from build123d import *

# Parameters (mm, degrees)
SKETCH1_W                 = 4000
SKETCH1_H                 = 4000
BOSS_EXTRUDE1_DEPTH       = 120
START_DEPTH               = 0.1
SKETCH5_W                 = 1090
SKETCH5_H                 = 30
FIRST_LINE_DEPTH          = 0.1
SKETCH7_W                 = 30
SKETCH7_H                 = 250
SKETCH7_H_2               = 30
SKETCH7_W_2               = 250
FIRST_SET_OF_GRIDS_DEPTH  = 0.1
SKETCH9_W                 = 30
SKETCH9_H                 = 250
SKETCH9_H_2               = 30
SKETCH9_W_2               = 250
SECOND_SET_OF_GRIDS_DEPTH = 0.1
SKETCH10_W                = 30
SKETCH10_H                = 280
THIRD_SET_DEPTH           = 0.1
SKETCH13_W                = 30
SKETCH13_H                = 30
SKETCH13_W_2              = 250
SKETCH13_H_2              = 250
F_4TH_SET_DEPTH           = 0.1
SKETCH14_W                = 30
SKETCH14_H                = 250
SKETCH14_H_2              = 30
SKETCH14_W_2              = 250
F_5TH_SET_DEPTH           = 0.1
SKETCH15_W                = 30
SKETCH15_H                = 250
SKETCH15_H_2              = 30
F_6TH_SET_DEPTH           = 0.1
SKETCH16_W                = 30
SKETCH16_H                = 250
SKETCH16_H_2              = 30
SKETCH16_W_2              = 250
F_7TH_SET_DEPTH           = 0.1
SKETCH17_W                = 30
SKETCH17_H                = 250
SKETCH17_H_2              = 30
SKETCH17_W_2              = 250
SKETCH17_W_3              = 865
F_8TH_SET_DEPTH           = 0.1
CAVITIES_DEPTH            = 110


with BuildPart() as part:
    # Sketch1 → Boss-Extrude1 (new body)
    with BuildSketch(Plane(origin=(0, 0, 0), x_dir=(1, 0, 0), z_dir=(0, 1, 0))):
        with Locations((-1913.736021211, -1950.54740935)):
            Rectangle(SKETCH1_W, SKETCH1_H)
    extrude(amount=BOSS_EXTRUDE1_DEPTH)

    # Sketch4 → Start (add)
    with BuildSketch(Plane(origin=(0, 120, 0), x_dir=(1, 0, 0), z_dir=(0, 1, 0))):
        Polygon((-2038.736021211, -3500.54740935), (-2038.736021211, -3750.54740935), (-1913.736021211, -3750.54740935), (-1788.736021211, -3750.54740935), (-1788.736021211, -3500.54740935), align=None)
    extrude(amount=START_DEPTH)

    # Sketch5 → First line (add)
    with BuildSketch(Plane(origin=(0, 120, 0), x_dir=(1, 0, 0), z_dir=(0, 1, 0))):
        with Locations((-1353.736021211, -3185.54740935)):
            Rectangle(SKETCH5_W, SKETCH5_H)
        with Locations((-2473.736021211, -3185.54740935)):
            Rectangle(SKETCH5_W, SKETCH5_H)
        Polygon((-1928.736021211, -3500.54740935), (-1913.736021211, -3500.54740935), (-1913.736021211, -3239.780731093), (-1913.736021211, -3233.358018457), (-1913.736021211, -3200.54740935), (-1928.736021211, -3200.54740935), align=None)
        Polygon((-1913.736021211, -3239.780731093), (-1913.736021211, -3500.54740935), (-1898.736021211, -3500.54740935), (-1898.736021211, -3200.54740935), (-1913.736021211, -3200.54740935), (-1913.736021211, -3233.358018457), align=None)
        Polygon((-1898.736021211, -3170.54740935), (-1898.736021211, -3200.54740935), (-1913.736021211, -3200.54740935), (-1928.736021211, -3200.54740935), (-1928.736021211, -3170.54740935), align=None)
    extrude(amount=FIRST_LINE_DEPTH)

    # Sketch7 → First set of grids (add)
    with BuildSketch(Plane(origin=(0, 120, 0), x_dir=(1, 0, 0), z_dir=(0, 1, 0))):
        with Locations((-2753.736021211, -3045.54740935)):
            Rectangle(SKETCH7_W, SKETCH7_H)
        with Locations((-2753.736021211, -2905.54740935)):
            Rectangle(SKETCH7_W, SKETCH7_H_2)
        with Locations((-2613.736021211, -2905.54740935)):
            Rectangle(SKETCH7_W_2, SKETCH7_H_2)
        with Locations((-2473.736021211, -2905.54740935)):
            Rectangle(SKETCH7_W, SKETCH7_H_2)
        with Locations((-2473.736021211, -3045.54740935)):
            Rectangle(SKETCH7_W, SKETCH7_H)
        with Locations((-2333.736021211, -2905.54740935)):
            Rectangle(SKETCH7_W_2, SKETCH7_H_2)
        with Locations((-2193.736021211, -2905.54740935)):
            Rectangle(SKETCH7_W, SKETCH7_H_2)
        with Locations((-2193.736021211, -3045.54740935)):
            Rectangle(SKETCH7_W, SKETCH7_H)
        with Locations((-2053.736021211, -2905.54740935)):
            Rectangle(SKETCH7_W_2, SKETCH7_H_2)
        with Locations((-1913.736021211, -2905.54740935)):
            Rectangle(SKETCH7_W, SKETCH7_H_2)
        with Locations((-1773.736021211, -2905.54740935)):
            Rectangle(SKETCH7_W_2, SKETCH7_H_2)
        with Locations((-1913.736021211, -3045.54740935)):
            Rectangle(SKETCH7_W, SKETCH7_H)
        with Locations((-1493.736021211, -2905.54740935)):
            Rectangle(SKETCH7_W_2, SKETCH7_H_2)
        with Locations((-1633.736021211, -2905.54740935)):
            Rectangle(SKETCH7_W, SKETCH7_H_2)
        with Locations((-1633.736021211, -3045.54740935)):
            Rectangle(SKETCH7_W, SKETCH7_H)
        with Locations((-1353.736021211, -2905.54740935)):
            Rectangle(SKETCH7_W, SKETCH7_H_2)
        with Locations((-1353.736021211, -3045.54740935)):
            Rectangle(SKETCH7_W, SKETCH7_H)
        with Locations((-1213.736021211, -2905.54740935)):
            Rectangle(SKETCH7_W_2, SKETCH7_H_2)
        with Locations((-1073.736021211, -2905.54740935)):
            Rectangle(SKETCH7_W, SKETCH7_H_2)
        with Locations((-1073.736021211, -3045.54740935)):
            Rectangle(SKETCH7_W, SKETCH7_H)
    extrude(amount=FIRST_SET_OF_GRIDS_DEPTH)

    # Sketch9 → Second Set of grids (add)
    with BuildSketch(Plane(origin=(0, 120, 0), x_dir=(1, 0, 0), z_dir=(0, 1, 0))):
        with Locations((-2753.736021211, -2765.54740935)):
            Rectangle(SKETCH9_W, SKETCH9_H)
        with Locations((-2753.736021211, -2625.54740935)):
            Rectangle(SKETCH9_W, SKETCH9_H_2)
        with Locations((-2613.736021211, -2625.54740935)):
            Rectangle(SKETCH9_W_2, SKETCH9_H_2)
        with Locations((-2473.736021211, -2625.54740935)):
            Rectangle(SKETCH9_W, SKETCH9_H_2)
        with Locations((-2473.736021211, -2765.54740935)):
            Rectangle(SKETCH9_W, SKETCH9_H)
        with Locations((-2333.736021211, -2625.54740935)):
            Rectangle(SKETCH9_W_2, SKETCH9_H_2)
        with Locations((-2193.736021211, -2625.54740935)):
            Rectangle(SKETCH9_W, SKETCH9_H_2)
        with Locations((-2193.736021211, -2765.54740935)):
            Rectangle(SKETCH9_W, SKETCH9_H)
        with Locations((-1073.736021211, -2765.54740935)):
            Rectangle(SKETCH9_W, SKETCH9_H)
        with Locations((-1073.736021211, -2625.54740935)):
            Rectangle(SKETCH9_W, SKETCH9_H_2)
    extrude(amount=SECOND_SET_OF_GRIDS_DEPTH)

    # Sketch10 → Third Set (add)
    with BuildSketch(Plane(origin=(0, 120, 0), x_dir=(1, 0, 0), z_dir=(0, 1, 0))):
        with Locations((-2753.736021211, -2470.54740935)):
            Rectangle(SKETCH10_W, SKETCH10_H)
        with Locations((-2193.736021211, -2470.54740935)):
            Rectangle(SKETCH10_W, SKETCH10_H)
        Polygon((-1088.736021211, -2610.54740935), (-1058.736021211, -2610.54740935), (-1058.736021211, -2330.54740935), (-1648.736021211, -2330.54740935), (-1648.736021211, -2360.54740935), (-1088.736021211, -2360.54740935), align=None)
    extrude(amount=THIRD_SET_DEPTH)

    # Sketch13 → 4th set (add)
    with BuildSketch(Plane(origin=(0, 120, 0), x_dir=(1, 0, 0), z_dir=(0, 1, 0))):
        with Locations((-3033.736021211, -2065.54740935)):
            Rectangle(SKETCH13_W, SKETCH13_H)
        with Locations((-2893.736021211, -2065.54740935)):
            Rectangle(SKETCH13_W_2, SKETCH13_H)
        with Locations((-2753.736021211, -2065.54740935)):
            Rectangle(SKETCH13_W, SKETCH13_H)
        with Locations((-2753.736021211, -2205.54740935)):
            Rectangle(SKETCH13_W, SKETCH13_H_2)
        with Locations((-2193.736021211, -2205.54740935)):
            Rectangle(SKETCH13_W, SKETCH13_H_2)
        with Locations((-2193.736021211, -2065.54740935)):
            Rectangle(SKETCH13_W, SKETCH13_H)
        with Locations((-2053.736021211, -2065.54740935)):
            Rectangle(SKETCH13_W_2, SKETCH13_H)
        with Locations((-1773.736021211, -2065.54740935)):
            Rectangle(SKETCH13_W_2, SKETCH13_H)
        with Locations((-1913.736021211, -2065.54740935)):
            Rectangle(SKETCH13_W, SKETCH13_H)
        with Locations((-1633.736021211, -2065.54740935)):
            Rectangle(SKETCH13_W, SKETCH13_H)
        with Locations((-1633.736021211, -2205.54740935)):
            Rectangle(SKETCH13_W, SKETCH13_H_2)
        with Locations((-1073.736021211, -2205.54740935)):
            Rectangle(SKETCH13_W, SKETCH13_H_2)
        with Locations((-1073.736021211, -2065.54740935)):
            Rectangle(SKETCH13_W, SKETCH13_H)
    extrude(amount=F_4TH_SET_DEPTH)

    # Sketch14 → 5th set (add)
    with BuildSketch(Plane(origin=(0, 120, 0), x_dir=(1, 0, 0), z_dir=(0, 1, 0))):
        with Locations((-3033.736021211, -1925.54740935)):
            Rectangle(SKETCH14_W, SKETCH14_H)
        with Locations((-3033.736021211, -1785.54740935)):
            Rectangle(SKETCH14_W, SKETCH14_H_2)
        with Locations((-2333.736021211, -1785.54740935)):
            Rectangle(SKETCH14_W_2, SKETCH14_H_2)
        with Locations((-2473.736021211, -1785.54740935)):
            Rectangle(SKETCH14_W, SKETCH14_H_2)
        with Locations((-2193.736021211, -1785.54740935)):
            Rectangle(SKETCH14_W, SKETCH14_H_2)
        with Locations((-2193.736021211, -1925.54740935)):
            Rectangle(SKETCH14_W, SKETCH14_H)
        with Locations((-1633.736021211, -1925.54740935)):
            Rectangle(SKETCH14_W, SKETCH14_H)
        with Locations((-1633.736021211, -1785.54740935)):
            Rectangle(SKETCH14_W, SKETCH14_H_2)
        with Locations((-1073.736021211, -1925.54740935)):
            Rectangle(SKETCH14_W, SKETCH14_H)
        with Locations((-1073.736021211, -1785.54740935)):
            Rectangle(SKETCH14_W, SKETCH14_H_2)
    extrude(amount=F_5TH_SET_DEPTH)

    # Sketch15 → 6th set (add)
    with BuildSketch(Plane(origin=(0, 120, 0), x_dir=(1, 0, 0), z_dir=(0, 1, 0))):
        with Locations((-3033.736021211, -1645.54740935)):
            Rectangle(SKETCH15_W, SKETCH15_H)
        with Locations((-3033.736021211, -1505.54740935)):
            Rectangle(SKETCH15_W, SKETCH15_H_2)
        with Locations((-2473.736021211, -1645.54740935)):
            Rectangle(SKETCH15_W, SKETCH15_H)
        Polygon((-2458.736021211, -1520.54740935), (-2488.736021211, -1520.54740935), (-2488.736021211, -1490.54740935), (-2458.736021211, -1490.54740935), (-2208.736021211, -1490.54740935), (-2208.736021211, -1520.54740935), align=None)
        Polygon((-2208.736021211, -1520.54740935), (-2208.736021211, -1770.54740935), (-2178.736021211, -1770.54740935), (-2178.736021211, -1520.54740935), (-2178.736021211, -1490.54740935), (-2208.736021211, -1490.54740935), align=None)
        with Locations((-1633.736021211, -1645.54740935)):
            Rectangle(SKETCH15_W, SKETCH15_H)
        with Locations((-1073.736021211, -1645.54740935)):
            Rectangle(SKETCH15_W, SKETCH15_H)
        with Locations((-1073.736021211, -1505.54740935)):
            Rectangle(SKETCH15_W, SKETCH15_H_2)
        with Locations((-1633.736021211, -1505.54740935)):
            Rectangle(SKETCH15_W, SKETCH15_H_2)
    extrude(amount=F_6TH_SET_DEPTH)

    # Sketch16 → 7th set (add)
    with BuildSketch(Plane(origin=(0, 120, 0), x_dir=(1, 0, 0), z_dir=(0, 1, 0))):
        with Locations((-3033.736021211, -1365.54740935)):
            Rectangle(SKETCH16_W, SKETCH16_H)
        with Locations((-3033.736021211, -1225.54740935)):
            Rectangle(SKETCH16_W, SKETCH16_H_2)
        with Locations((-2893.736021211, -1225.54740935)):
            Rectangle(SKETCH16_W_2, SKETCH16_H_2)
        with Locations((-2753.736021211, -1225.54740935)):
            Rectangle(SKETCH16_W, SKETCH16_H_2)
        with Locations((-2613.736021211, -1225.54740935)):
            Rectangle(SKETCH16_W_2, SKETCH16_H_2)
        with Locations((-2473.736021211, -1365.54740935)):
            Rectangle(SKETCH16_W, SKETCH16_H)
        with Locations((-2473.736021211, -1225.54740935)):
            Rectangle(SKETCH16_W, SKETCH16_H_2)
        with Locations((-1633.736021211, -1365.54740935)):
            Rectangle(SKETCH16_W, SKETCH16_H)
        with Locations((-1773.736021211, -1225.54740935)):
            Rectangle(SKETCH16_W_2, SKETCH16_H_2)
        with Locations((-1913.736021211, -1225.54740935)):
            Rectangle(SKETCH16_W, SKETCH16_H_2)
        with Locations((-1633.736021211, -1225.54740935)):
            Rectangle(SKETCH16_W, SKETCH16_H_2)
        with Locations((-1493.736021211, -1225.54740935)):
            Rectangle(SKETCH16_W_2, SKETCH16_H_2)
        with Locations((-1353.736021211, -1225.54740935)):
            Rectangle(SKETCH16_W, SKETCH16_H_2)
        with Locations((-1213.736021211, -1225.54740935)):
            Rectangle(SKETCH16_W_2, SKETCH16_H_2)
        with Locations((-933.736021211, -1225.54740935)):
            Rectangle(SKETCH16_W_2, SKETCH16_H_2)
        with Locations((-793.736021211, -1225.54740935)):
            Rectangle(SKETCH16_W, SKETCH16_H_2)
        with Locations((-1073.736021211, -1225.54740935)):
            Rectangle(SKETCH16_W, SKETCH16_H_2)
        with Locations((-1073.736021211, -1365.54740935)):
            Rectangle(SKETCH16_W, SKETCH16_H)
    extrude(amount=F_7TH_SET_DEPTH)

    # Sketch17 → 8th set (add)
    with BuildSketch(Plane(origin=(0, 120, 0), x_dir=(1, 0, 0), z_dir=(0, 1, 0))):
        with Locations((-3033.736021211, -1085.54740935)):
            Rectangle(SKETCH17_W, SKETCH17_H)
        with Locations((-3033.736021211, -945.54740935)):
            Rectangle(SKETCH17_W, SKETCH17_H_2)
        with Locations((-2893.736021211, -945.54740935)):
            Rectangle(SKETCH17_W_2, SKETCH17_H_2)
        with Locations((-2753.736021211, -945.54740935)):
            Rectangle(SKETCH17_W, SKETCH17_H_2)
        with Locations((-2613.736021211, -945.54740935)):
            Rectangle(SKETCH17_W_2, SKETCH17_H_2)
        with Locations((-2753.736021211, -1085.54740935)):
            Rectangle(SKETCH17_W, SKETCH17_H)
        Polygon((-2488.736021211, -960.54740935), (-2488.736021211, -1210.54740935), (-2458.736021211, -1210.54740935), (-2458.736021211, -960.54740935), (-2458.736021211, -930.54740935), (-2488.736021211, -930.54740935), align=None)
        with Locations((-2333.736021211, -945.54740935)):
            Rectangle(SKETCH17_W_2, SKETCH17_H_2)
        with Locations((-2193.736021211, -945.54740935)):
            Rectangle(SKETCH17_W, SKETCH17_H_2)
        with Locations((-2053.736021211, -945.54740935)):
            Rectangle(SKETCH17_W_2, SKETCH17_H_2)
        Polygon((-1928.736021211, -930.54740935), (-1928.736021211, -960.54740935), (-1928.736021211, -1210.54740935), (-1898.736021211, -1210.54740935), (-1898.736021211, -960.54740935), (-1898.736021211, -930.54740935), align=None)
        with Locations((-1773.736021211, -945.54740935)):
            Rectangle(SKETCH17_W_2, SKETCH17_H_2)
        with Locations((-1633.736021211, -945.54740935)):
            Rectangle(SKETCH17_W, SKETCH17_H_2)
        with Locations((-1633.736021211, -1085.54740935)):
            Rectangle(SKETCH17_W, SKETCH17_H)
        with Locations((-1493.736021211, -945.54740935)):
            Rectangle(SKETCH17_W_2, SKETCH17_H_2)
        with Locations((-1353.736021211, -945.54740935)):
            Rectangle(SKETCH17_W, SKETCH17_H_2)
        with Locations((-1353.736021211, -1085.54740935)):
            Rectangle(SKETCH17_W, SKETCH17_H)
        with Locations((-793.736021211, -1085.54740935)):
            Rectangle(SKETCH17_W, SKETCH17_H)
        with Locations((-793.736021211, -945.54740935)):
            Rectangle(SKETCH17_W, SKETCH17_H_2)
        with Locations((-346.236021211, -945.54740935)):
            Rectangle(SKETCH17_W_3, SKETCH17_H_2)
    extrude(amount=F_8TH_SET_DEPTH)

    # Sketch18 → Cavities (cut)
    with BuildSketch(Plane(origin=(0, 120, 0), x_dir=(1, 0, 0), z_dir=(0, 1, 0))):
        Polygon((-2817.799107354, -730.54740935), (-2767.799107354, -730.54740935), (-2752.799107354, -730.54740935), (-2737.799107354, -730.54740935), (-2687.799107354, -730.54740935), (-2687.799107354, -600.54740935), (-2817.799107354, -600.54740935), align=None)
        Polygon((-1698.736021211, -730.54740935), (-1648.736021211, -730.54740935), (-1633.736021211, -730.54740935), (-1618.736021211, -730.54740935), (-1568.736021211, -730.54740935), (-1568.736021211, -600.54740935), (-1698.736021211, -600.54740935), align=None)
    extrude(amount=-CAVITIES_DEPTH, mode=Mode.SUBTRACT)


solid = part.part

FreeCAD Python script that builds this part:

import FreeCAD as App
import Part
import Sketcher


def add_polygon(sketch, points):
    """Adds a closed chain of lines whose ends are joined by coincident constraints."""
    first, n = sketch.GeometryCount, len(points)
    for a, b in zip(points, points[1:] + points[:1]):
        sketch.addGeometry(Part.LineSegment(App.Vector(*a, 0), App.Vector(*b, 0)), False)
    for i in range(n):
        sketch.addConstraint(Sketcher.Constraint("Coincident", first + i, 2, first + (i + 1) % n, 1))

doc = App.newDocument("Part")
body = doc.addObject("PartDesign::Body", "Body")

# Sketch on XZ plane
sketch1 = body.newObject("Sketcher::SketchObject", "Sketch")
sketch1.AttachmentSupport = (doc.getObject("XZ_Plane"), [""])
sketch1.MapMode = "FlatFace"
add_polygon(sketch1, [(-3913.736021, -49.452591), (-3913.736021, 3950.547409), (86.263979, 3950.547409), (86.263979, -49.452591)])  # lines 0-3
sketch1.addConstraint([
    Sketcher.Constraint("Vertical", 0),
    Sketcher.Constraint("Horizontal", 1),
    Sketcher.Constraint("Vertical", 2),
    Sketcher.Constraint("Horizontal", 3),
    Sketcher.Constraint("Equal", 3, 0),
    Sketcher.Constraint("DistanceX", 1, 1, 1, 2, 4000.0),
    Sketcher.Constraint("DistanceX", 0, 2, -1, 1, 3913.736021),
    Sketcher.Constraint("DistanceY", -1, 1, 0, 2, 3950.547409),
])
pad1 = body.newObject("PartDesign::Pad", "Pad")
pad1.Profile = sketch1
pad1.Length = 120
pad1.Reversed = True

# Sketch on XZ plane
sketch2 = body.newObject("Sketcher::SketchObject", "Sketch001")
sketch2.AttachmentSupport = (doc.getObject("XZ_Plane"), [""])
sketch2.MapMode = "FlatFace"
sketch2.AttachmentOffset = App.Placement(App.Vector(0, 0, -120), App.Rotation())
add_polygon(sketch2, [(-2038.736021, 3500.547409), (-2038.736021, 3750.547409), (-1788.736021, 3750.547409), (-1788.736021, 3500.547409)])  # lines 0-3
sketch2.addConstraint([
    Sketcher.Constraint("Vertical", 0),
    Sketcher.Constraint("Horizontal", 1),
    Sketcher.Constraint("Vertical", 2),
    Sketcher.Constraint("Horizontal", 3),
    Sketcher.Constraint("Equal", 3, 0),
    Sketcher.Constraint("DistanceX", 1, 1, 1, 2, 250.0),
    Sketcher.Constraint("DistanceX", 0, 2, -1, 1, 2038.736021),
    Sketcher.Constraint("DistanceY", -1, 1, 0, 2, 3750.547409),
])
pad2 = body.newObject("PartDesign::Pad", "Pad001")
pad2.Profile = sketch2
pad2.Length = 0.1
pad2.Reversed = True

# Sketch on XZ plane
sketch3 = body.newObject("Sketcher::SketchObject", "Sketch002")
sketch3.AttachmentSupport = (doc.getObject("XZ_Plane"), [""])
sketch3.MapMode = "FlatFace"
sketch3.AttachmentOffset = App.Placement(App.Vector(0, 0, -120), App.Rotation())
add_polygon(sketch3, [(-1898.736021, 3200.547409), (-808.736021, 3200.547409), (-808.736021, 3170.547409), (-3018.736021, 3170.547409), (-3018.736021, 3200.547409), (-1928.736021, 3200.547409), (-1928.736021, 3500.547409), (-1898.736021, 3500.547409)])  # lines 0-7
sketch3.addConstraint([
    Sketcher.Constraint("Horizontal", 0),
    Sketcher.Constraint("Vertical", 1),
    Sketcher.Constraint("Horizontal", 2),
    Sketcher.Constraint("Vertical", 3),
    Sketcher.Constraint("Horizontal", 4),
    Sketcher.Constraint("Vertical", 5),
    Sketcher.Constraint("Horizontal", 6),
    Sketcher.Constraint("Vertical", 7),
    Sketcher.Constraint("Horizontal", 0, 2, 3, 2),
    Sketcher.Constraint("Equal", 0, 4),
    Sketcher.Constraint("Equal", 6, 1),
    Sketcher.Constraint("DistanceX", 0, 1, 0, 2, 1090.0),
    Sketcher.Constraint("DistanceX", 2, 2, 2, 1, 2210.0),
    Sketcher.Constraint("DistanceY", 5, 1, 5, 2, 300.0),
    Sketcher.Constraint("DistanceX", 0, 2, -1, 1, 808.736021),
    Sketcher.Constraint("DistanceY", -1, 1, 0, 2, 3200.547409),
])
pad3 = body.newObject("PartDesign::Pad", "Pad002")
pad3.Profile = sketch3
pad3.Length = 0.1
pad3.Reversed = True

# Sketch on XZ plane
sketch4 = body.newObject("Sketcher::SketchObject", "Sketch003")
sketch4.AttachmentSupport = (doc.getObject("XZ_Plane"), [""])
sketch4.MapMode = "FlatFace"
sketch4.AttachmentOffset = App.Placement(App.Vector(0, 0, -120), App.Rotation())
add_polygon(sketch4, [(-2768.736021, 3170.547409), (-2738.736021, 3170.547409), (-2738.736021, 2920.547409), (-2488.736021, 2920.547409), (-2488.736021, 3170.547409), (-2458.736021, 3170.547409), (-2458.736021, 2920.547409), (-2208.736021, 2920.547409), (-2208.736021, 3170.547409), (-2178.736021, 3170.547409), (-2178.736021, 2920.547409), (-1928.736021, 2920.547409), (-1928.736021, 3170.547409), (-1898.736021, 3170.547409), (-1898.736021, 2920.547409), (-1648.736021, 2920.547409), (-1648.736021, 3170.547409), (-1618.736021, 3170.547409), (-1618.736021, 2920.547409), (-1368.736021, 2920.547409), (-1368.736021, 3170.547409), (-1338.736021, 3170.547409), (-1338.736021, 2920.547409), (-1088.736021, 2920.547409), (-1088.736021, 3170.547409), (-1058.736021, 3170.547409), (-1058.736021, 2890.547409), (-2768.736021, 2890.547409)])  # lines 0-27
sketch4.addConstraint([
    Sketcher.Constraint("Horizontal", 0),
    Sketcher.Constraint("Vertical", 1),
    Sketcher.Constraint("Horizontal", 2),
    Sketcher.Constraint("Vertical", 3),
    Sketcher.Constraint("Horizontal", 4),
    Sketcher.Constraint("Vertical", 5),
    Sketcher.Constraint("Horizontal", 6),
    Sketcher.Constraint("Vertical", 7),
    Sketcher.Constraint("Horizontal", 8),
    Sketcher.Constraint("Vertical", 9),
    Sketcher.Constraint("Horizontal", 10),
    Sketcher.Constraint("Vertical", 11),
    Sketcher.Constraint("Horizontal", 12),
    Sketcher.Constraint("Vertical", 13),
    Sketcher.Constraint("Horizontal", 14),
    Sketcher.Constraint("Vertical", 15),
    Sketcher.Constraint("Horizontal", 16),
    Sketcher.Constraint("Vertical", 17),
    Sketcher.Constraint("Horizontal", 18),
    Sketcher.Constraint("Vertical", 19),
    Sketcher.Constraint("Horizontal", 20),
    Sketcher.Constraint("Vertical", 21),
    Sketcher.Constraint("Horizontal", 22),
    Sketcher.Constraint("Vertical", 23),
    Sketcher.Constraint("Horizontal", 24),
    Sketcher.Constraint("Vertical", 25),
    Sketcher.Constraint("Horizontal", 26),
    Sketcher.Constraint("Vertical", 27),
    Sketcher.Constraint("Horizontal", 0, 2, 3, 2),
    Sketcher.Constraint("Horizontal", 2, 2, 5, 2),
    Sketcher.Constraint("Horizontal", 4, 2, 7, 2),
    Sketcher.Constraint("Horizontal", 6, 2, 9, 2),
    Sketcher.Constraint("Horizontal", 8, 2, 11, 2),
    Sketcher.Constraint("Horizontal", 10, 2, 13, 2),
    Sketcher.Constraint("Horizontal", 12, 2, 15, 2),
    Sketcher.Constraint("Horizontal", 14, 2, 17, 2),
    Sketcher.Constraint("Horizontal", 16, 2, 19, 2),
    Sketcher.Constraint("Horizontal", 18, 2, 21, 2),
    Sketcher.Constraint("Horizontal", 20, 2, 23, 2),
    Sketcher.Constraint("Equal", 0, 4),
    Sketcher.Constraint("Equal", 2, 6),
    Sketcher.Constraint("Equal", 4, 8),
    Sketcher.Constraint("Equal", 6, 10),
    Sketcher.Constraint("Equal", 8, 12),
    Sketcher.Constraint("Equal", 10, 14),
    Sketcher.Constraint("Equal", 12, 16),
    Sketcher.Constraint("Equal", 14, 18),
    Sketcher.Constraint("Equal", 16, 20),
    Sketcher.Constraint("Equal", 18, 22),
    Sketcher.Constraint("Equal", 20, 24),
    Sketcher.Constraint("Equal", 22, 1),
    Sketcher.Constraint("DistanceX", 0, 1, 0, 2, 30.0),
    Sketcher.Constraint("DistanceX", 2, 1, 2, 2, 250.0),
    Sketcher.Constraint("DistanceY", 25, 2, 25, 1, 280.0),
    Sketcher.Constraint("DistanceX", 0, 2, -1, 1, 2738.736021),
    Sketcher.Constraint("DistanceY", -1, 1, 0, 2, 3170.547409),
])
pad4 = body.newObject("PartDesign::Pad", "Pad003")
pad4.Profile = sketch4
pad4.Length = 0.1
pad4.Reversed = True

# Sketch on XZ plane
sketch5 = body.newObject("Sketcher::SketchObject", "Sketch004")
sketch5.AttachmentSupport = (doc.getObject("XZ_Plane"), [""])
sketch5.MapMode = "FlatFace"
sketch5.AttachmentOffset = App.Placement(App.Vector(0, 0, -120), App.Rotation())
add_polygon(sketch5, [(-2768.736021, 2890.547409), (-2738.736021, 2890.547409), (-2738.736021, 2640.547409), (-2488.736021, 2640.547409), (-2488.736021, 2890.547409), (-2458.736021, 2890.547409), (-2458.736021, 2640.547409), (-2208.736021, 2640.547409), (-2208.736021, 2890.547409), (-2178.736021, 2890.547409), (-2178.736021, 2610.547409), (-2768.736021, 2610.547409)])  # lines 0-11
add_polygon(sketch5, [(-1088.736021, 2890.547409), (-1058.736021, 2890.547409), (-1058.736021, 2610.547409), (-1088.736021, 2610.547409)])  # lines 12-15
sketch5.addConstraint([
    Sketcher.Constraint("Horizontal", 0),
    Sketcher.Constraint("Vertical", 1),
    Sketcher.Constraint("Horizontal", 2),
    Sketcher.Constraint("Vertical", 3),
    Sketcher.Constraint("Horizontal", 4),
    Sketcher.Constraint("Vertical", 5),
    Sketcher.Constraint("Horizontal", 6),
    Sketcher.Constraint("Vertical", 7),
    Sketcher.Constraint("Horizontal", 8),
    Sketcher.Constraint("Vertical", 9),
    Sketcher.Constraint("Horizontal", 10),
    Sketcher.Constraint("Vertical", 11),
    Sketcher.Constraint("Horizontal", 12),
    Sketcher.Constraint("Vertical", 13),
    Sketcher.Constraint("Horizontal", 14),
    Sketcher.Constraint("Vertical", 15),
    Sketcher.Constraint("Horizontal", 0, 2, 3, 2),
    Sketcher.Constraint("Horizontal", 2, 2, 5, 2),
    Sketcher.Constraint("Horizontal", 4, 2, 7, 2),
    Sketcher.Constraint("Horizontal", 11, 2, 12, 2),
    Sketcher.Constraint("Horizontal", 10, 2, 13, 2),
    Sketcher.Constraint("Equal", 0, 4),
    Sketcher.Constraint("Equal", 2, 6),
    Sketcher.Constraint("Equal", 4, 8),
    Sketcher.Constraint("Equal", 8, 12),
    Sketcher.Constraint("Equal", 6, 1),
    Sketcher.Constraint("DistanceX", 0, 1, 0, 2, 30.0),
    Sketcher.Constraint("DistanceX", 2, 1, 2, 2, 250.0),
    Sketcher.Constraint("DistanceY", 9, 2, 9, 1, 280.0),
    Sketcher.Constraint("DistanceX", 8, 2, 12, 2, 1120.0),
    Sketcher.Constraint("DistanceX", 0, 2, -1, 1, 2738.736021),
    Sketcher.Constraint("DistanceY", -1, 1, 0, 2, 2890.547409),
])
pad5 = body.newObject("PartDesign::Pad", "Pad004")
pad5.Profile = sketch5
pad5.Length = 0.1
pad5.Reversed = True

# Sketch on XZ plane
sketch6 = body.newObject("Sketcher::SketchObject", "Sketch005")
sketch6.AttachmentSupport = (doc.getObject("XZ_Plane"), [""])
sketch6.MapMode = "FlatFace"
sketch6.AttachmentOffset = App.Placement(App.Vector(0, 0, -120), App.Rotation())
add_polygon(sketch6, [(-2768.736021, 2330.547409), (-2768.736021, 2610.547409), (-2738.736021, 2610.547409), (-2738.736021, 2330.547409)])  # lines 0-3
add_polygon(sketch6, [(-2208.736021, 2330.547409), (-2208.736021, 2610.547409), (-2178.736021, 2610.547409), (-2178.736021, 2330.547409)])  # lines 4-7
add_polygon(sketch6, [(-1088.736021, 2610.547409), (-1058.736021, 2610.547409), (-1058.736021, 2330.547409), (-1648.736021, 2330.547409), (-1648.736021, 2360.547409), (-1088.736021, 2360.547409)])  # lines 8-13
sketch6.addConstraint([
    Sketcher.Constraint("Vertical", 0),
    Sketcher.Constraint("Horizontal", 1),
    Sketcher.Constraint("Vertical", 2),
    Sketcher.Constraint("Horizontal", 3),
    Sketcher.Constraint("Vertical", 4),
    Sketcher.Constraint("Horizontal", 5),
    Sketcher.Constraint("Vertical", 6),
    Sketcher.Constraint("Horizontal", 7),
    Sketcher.Constraint("Horizontal", 8),
    Sketcher.Constraint("Vertical", 9),
    Sketcher.Constraint("Horizontal", 10),
    Sketcher.Constraint("Vertical", 11),
    Sketcher.Constraint("Horizontal", 12),
    Sketcher.Constraint("Vertical", 13),
    Sketcher.Constraint("Horizontal", 1, 2, 4, 2),
    Sketcher.Constraint("Horizontal", 3, 2, 6, 2),
    Sketcher.Constraint("Horizontal", 5, 2, 8, 2),
    Sketcher.Constraint("Horizontal", 7, 2, 9, 2),
    Sketcher.Constraint("Equal", 3, 5),
    Sketcher.Constraint("Equal", 7, 8),
    Sketcher.Constraint("Equal", 8, 11),
    Sketcher.Constraint("DistanceX", 1, 1, 1, 2, 30.0),
    Sketcher.Constraint("DistanceX", 10, 2, 10, 1, 590.0),
    Sketcher.Constraint("DistanceY", 0, 1, 0, 2, 280.0),
    Sketcher.Constraint("DistanceX", 1, 2, 4, 2, 530.0),
    Sketcher.Constraint("DistanceX", 5, 2, 8, 2, 1120.0),
    Sketcher.Constraint("DistanceX", 0, 2, -1, 1, 2768.736021),
    Sketcher.Constraint("DistanceY", -1, 1, 0, 2, 2610.547409),
])
pad6 = body.newObject("PartDesign::Pad", "Pad005")
pad6.Profile = sketch6
pad6.Length = 0.1
pad6.Reversed = True

# Sketch on XZ plane
sketch7 = body.newObject("Sketcher::SketchObject", "Sketch006")
sketch7.AttachmentSupport = (doc.getObject("XZ_Plane"), [""])
sketch7.MapMode = "FlatFace"
sketch7.AttachmentOffset = App.Placement(App.Vector(0, 0, -120), App.Rotation())
add_polygon(sketch7, [(-3048.736021, 2050.547409), (-3048.736021, 2080.547409), (-2768.736021, 2080.547409), (-2768.736021, 2330.547409), (-2738.736021, 2330.547409), (-2738.736021, 2050.547409)])  # lines 0-5
add_polygon(sketch7, [(-2208.736021, 2330.547409), (-2178.736021, 2330.547409), (-2178.736021, 2080.547409), (-1648.736021, 2080.547409), (-1648.736021, 2330.547409), (-1618.736021, 2330.547409), (-1618.736021, 2050.547409), (-2208.736021, 2050.547409)])  # lines 6-13
add_polygon(sketch7, [(-1088.736021, 2330.547409), (-1058.736021, 2330.547409), (-1058.736021, 2050.547409), (-1088.736021, 2050.547409)])  # lines 14-17
sketch7.addConstraint([
    Sketcher.Constraint("Vertical", 0),
    Sketcher.Constraint("Horizontal", 1),
    Sketcher.Constraint("Vertical", 2),
    Sketcher.Constraint("Horizontal", 3),
    Sketcher.Constraint("Vertical", 4),
    Sketcher.Constraint("Horizontal", 5),
    Sketcher.Constraint("Horizontal", 6),
    Sketcher.Constraint("Vertical", 7),
    Sketcher.Constraint("Horizontal", 8),
    Sketcher.Constraint("Vertical", 9),
    Sketcher.Constraint("Horizontal", 10),
    Sketcher.Constraint("Vertical", 11),
    Sketcher.Constraint("Horizontal", 12),
    Sketcher.Constraint("Vertical", 13),
    Sketcher.Constraint("Horizontal", 14),
    Sketcher.Constraint("Vertical", 15),
    Sketcher.Constraint("Horizontal", 16),
    Sketcher.Constraint("Vertical", 17),
    Sketcher.Constraint("Horizontal", 3, 2, 6, 2),
    Sketcher.Constraint("Horizontal", 1, 2, 7, 2),
    Sketcher.Constraint("Horizontal", 6, 2, 9, 2),
    Sketcher.Constraint("Horizontal", 5, 2, 11, 2),
    Sketcher.Constraint("Horizontal", 13, 2, 14, 2),
    Sketcher.Constraint("Horizontal", 12, 2, 15, 2),
    Sketcher.Constraint("Equal", 3, 6),
    Sketcher.Constraint("Equal", 6, 10),
    Sketcher.Constraint("Equal", 10, 14),
    Sketcher.Constraint("Equal", 16, 0),
    Sketcher.Constraint("Equal", 1, 4),
    Sketcher.Constraint("DistanceX", 1, 1, 1, 2, 280.0),
    Sketcher.Constraint("DistanceX", 3, 1, 3, 2, 30.0),
    Sketcher.Constraint("DistanceX", 8, 1, 8, 2, 530.0),
    Sketcher.Constraint("DistanceX", 3, 2, 6, 2, 560.0),
    Sketcher.Constraint("DistanceX", 10, 2, 14, 2, 560.0),
    Sketcher.Constraint("DistanceX", 0, 2, -1, 1, 3048.736021),
    Sketcher.Constraint("DistanceY", -1, 1, 0, 2, 2080.547409),
])
pad7 = body.newObject("PartDesign::Pad", "Pad006")
pad7.Profile = sketch7
pad7.Length = 0.1
pad7.Reversed = True

# Sketch on XZ plane
sketch8 = body.newObject("Sketcher::SketchObject", "Sketch007")
sketch8.AttachmentSupport = (doc.getObject("XZ_Plane"), [""])
sketch8.MapMode = "FlatFace"
sketch8.AttachmentOffset = App.Placement(App.Vector(0, 0, -120), App.Rotation())
add_polygon(sketch8, [(-3048.736021, 2050.547409), (-3018.736021, 2050.547409), (-3018.736021, 1770.547409), (-3048.736021, 1770.547409)])  # lines 0-3
add_polygon(sketch8, [(-2488.736021, 1770.547409), (-2488.736021, 1800.547409), (-2208.736021, 1800.547409), (-2208.736021, 2050.547409), (-2178.736021, 2050.547409), (-2178.736021, 1770.547409)])  # lines 4-9
add_polygon(sketch8, [(-1648.736021, 2050.547409), (-1618.736021, 2050.547409), (-1618.736021, 1770.547409), (-1648.736021, 1770.547409)])  # lines 10-13
add_polygon(sketch8, [(-1088.736021, 2050.547409), (-1058.736021, 2050.547409), (-1058.736021, 1770.547409), (-1088.736021, 1770.547409)])  # lines 14-17
sketch8.addConstraint([
    Sketcher.Constraint("Horizontal", 0),
    Sketcher.Constraint("Vertical", 1),
    Sketcher.Constraint("Horizontal", 2),
    Sketcher.Constraint("Vertical", 3),
    Sketcher.Constraint("Vertical", 4),
    Sketcher.Constraint("Horizontal", 5),
    Sketcher.Constraint("Vertical", 6),
    Sketcher.Constraint("Horizontal", 7),
    Sketcher.Constraint("Vertical", 8),
    Sketcher.Constraint("Horizontal", 9),
    Sketcher.Constraint("Horizontal", 10),
    Sketcher.Constraint("Vertical", 11),
    Sketcher.Constraint("Horizontal", 12),
    Sketcher.Constraint("Vertical", 13),
    Sketcher.Constraint("Horizontal", 14),
    Sketcher.Constraint("Vertical", 15),
    Sketcher.Constraint("Horizontal", 16),
    Sketcher.Constraint("Vertical", 17),
    Sketcher.Constraint("Horizontal", 3, 2, 6, 2),
    Sketcher.Constraint("Horizontal", 2, 2, 8, 2),
    Sketcher.Constraint("Horizontal", 7, 2, 10, 2),
    Sketcher.Constraint("Horizontal", 9, 2, 11, 2),
    Sketcher.Constraint("Horizontal", 13, 2, 14, 2),
    Sketcher.Constraint("Horizontal", 12, 2, 15, 2),
    Sketcher.Constraint("Equal", 2, 7),
    Sketcher.Constraint("Equal", 7, 10),
    Sketcher.Constraint("Equal", 12, 14),
    Sketcher.Constraint("Equal", 5, 1),
    Sketcher.Constraint("Equal", 16, 4),
    Sketcher.Constraint("DistanceX", 0, 1, 0, 2, 30.0),
    Sketcher.Constraint("DistanceX", 5, 1, 5, 2, 280.0),
    Sketcher.Constraint("DistanceX", 1, 2, 4, 2, 530.0),
    Sketcher.Constraint("DistanceX", 7, 2, 10, 2, 560.0),
    Sketcher.Constraint("DistanceX", 10, 2, 14, 2, 560.0),
    Sketcher.Constraint("DistanceX", 0, 2, -1, 1, 3018.736021),
    Sketcher.Constraint("DistanceY", -1, 1, 0, 2, 2050.547409),
])
pad8 = body.newObject("PartDesign::Pad", "Pad007")
pad8.Profile = sketch8
pad8.Length = 0.1
pad8.Reversed = True

# Sketch on XZ plane
sketch9 = body.newObject("Sketcher::SketchObject", "Sketch008")
sketch9.AttachmentSupport = (doc.getObject("XZ_Plane"), [""])
sketch9.MapMode = "FlatFace"
sketch9.AttachmentOffset = App.Placement(App.Vector(0, 0, -120), App.Rotation())
add_polygon(sketch9, [(-3048.736021, 1770.547409), (-3018.736021, 1770.547409), (-3018.736021, 1490.547409), (-3048.736021, 1490.547409)])  # lines 0-3
add_polygon(sketch9, [(-2488.736021, 1770.547409), (-2458.736021, 1770.547409), (-2458.736021, 1520.547409), (-2208.736021, 1520.547409), (-2208.736021, 1770.547409), (-2178.736021, 1770.547409), (-2178.736021, 1490.547409), (-2488.736021, 1490.547409)])  # lines 4-11
add_polygon(sketch9, [(-1648.736021, 1770.547409), (-1618.736021, 1770.547409), (-1618.736021, 1490.547409), (-1648.736021, 1490.547409)])  # lines 12-15
add_polygon(sketch9, [(-1088.736021, 1770.547409), (-1058.736021, 1770.547409), (-1058.736021, 1490.547409), (-1088.736021, 1490.547409)])  # lines 16-19
sketch9.addConstraint([
    Sketcher.Constraint("Horizontal", 0),
    Sketcher.Constraint("Vertical", 1),
    Sketcher.Constraint("Horizontal", 2),
    Sketcher.Constraint("Vertical", 3),
    Sketcher.Constraint("Horizontal", 4),
    Sketcher.Constraint("Vertical", 5),
    Sketcher.Constraint("Horizontal", 6),
    Sketcher.Constraint("Vertical", 7),
    Sketcher.Constraint("Horizontal", 8),
    Sketcher.Constraint("Vertical", 9),
    Sketcher.Constraint("Horizontal", 10),
    Sketcher.Constraint("Vertical", 11),
    Sketcher.Constraint("Horizontal", 12),
    Sketcher.Constraint("Vertical", 13),
    Sketcher.Constraint("Horizontal", 14),
    Sketcher.Constraint("Vertical", 15),
    Sketcher.Constraint("Horizontal", 16),
    Sketcher.Constraint("Vertical", 17),
    Sketcher.Constraint("Horizontal", 18),
    Sketcher.Constraint("Vertical", 19),
    Sketcher.Constraint("Horizontal", 3, 2, 4, 2),
    Sketcher.Constraint("Horizontal", 4, 2, 7, 2),
    Sketcher.Constraint("Horizontal", 2, 2, 9, 2),
    Sketcher.Constraint("Horizontal", 11, 2, 12, 2),
    Sketcher.Constraint("Horizontal", 10, 2, 13, 2),
    Sketcher.Constraint("Horizontal", 15, 2, 16, 2),
    Sketcher.Constraint("Horizontal", 14, 2, 17, 2),
    Sketcher.Constraint("Equal", 2, 4),
    Sketcher.Constraint("Equal", 4, 8),
    Sketcher.Constraint("Equal", 8, 12),
    Sketcher.Constraint("Equal", 14, 16),
    Sketcher.Constraint("Equal", 6, 5),
    Sketcher.Constraint("DistanceX", 0, 1, 0, 2, 30.0),
    Sketcher.Constraint("DistanceX", 6, 1, 6, 2, 250.0),
    Sketcher.Constraint("DistanceY", 1, 2, 1, 1, 280.0),
    Sketcher.Constraint("DistanceX", 0, 2, 4, 2, 560.0),
    Sketcher.Constraint("DistanceX", 8, 2, 12, 2, 560.0),
    Sketcher.Constraint("DistanceX", 12, 2, 16, 2, 560.0),
    Sketcher.Constraint("DistanceX", 0, 2, -1, 1, 3018.736021),
    Sketcher.Constraint("DistanceY", -1, 1, 0, 2, 1770.547409),
])
pad9 = body.newObject("PartDesign::Pad", "Pad008")
pad9.Profile = sketch9
pad9.Length = 0.1
pad9.Reversed = True

# Sketch on XZ plane
sketch10 = body.newObject("Sketcher::SketchObject", "Sketch009")
sketch10.AttachmentSupport = (doc.getObject("XZ_Plane"), [""])
sketch10.MapMode = "FlatFace"
sketch10.AttachmentOffset = App.Placement(App.Vector(0, 0, -120), App.Rotation())
add_polygon(sketch10, [(-3048.736021, 1490.547409), (-3018.736021, 1490.547409), (-3018.736021, 1240.547409), (-2488.736021, 1240.547409), (-2488.736021, 1490.547409), (-2458.736021, 1490.547409), (-2458.736021, 1210.547409), (-3048.736021, 1210.547409)])  # lines 0-7
add_polygon(sketch10, [(-1648.736021, 1240.547409), (-1648.736021, 1490.547409), (-1618.736021, 1490.547409), (-1618.736021, 1240.547409), (-1088.736021, 1240.547409), (-1088.736021, 1490.547409), (-1058.736021, 1490.547409), (-1058.736021, 1240.547409), (-778.736021, 1240.547409), (-778.736021, 1210.547409), (-1928.736021, 1210.547409), (-1928.736021, 1240.547409)])  # lines 8-19
sketch10.addConstraint([
    Sketcher.Constraint("Horizontal", 0),
    Sketcher.Constraint("Vertical", 1),
    Sketcher.Constraint("Horizontal", 2),
    Sketcher.Constraint("Vertical", 3),
    Sketcher.Constraint("Horizontal", 4),
    Sketcher.Constraint("Vertical", 5),
    Sketcher.Constraint("Horizontal", 6),
    Sketcher.Constraint("Vertical", 7),
    Sketcher.Constraint("Vertical", 8),
    Sketcher.Constraint("Horizontal", 9),
    Sketcher.Constraint("Vertical", 10),
    Sketcher.Constraint("Horizontal", 11),
    Sketcher.Constraint("Vertical", 12),
    Sketcher.Constraint("Horizontal", 13),
    Sketcher.Constraint("Vertical", 14),
    Sketcher.Constraint("Horizontal", 15),
    Sketcher.Constraint("Vertical", 16),
    Sketcher.Constraint("Horizontal", 17),
    Sketcher.Constraint("Vertical", 18),
    Sketcher.Constraint("Horizontal", 19),
    Sketcher.Constraint("Horizontal", 0, 2, 3, 2),
    Sketcher.Constraint("Horizontal", 7, 2, 8, 2),
    Sketcher.Constraint("Horizontal", 2, 2, 10, 2),
    Sketcher.Constraint("Horizontal", 9, 2, 12, 2),
    Sketcher.Constraint("Horizontal", 11, 2, 14, 2),
    Sketcher.Constraint("Horizontal", 6, 2, 16, 2),
    Sketcher.Constraint("Horizontal", 15, 2, 18, 2),
    Sketcher.Constraint("Equal", 0, 4),
    Sketcher.Constraint("Equal", 4, 9),
    Sketcher.Constraint("Equal", 2, 11),
    Sketcher.Constraint("Equal", 9, 13),
    Sketcher.Constraint("Equal", 15, 19),
    Sketcher.Constraint("Equal", 19, 5),
    Sketcher.Constraint("Equal", 13, 16),
    Sketcher.Constraint("DistanceX", 0, 1, 0, 2, 30.0),
    Sketcher.Constraint("DistanceX", 2, 1, 2, 2, 530.0),
    Sketcher.Constraint("DistanceX", 15, 1, 15, 2, 280.0),
    Sketcher.Constraint("DistanceX", 4, 2, 8, 2, 810.0),
    Sketcher.Constraint("DistanceX", 0, 2, -1, 1, 3018.736021),
    Sketcher.Constraint("DistanceY", -1, 1, 0, 2, 1490.547409),
])
pad10 = body.newObject("PartDesign::Pad", "Pad009")
pad10.Profile = sketch10
pad10.Length = 0.1
pad10.Reversed = True

# Sketch on XZ plane
sketch11 = body.newObject("Sketcher::SketchObject", "Sketch010")
sketch11.AttachmentSupport = (doc.getObject("XZ_Plane"), [""])
sketch11.MapMode = "FlatFace"
sketch11.AttachmentOffset = App.Placement(App.Vector(0, 0, -120), App.Rotation())
add_polygon(sketch11, [(-3048.736021, 1210.547409), (-3018.736021, 1210.547409), (-3018.736021, 960.547409), (-2768.736021, 960.547409), (-2768.736021, 1210.547409), (-2738.736021, 1210.547409), (-2738.736021, 960.547409), (-2488.736021, 960.547409), (-2488.736021, 1210.547409), (-2458.736021, 1210.547409), (-2458.736021, 960.547409), (-1928.736021, 960.547409), (-1928.736021, 1210.547409), (-1898.736021, 1210.547409), (-1898.736021, 960.547409), (-1648.736021, 960.547409), (-1648.736021, 1210.547409), (-1618.736021, 1210.547409), (-1618.736021, 960.547409), (-1368.736021, 960.547409), (-1368.736021, 1210.547409), (-1338.736021, 1210.547409), (-1338.736021, 930.547409), (-3048.736021, 930.547409)])  # lines 0-23
add_polygon(sketch11, [(-808.736021, 1210.547409), (-778.736021, 1210.547409), (-778.736021, 960.547409), (86.263979, 960.547409), (86.263979, 930.547409), (-808.736021, 930.547409)])  # lines 24-29
sketch11.addConstraint([
    Sketcher.Constraint("Horizontal", 0),
    Sketcher.Constraint("Vertical", 1),
    Sketcher.Constraint("Horizontal", 2),
    Sketcher.Constraint("Vertical", 3),
    Sketcher.Constraint("Horizontal", 4),
    Sketcher.Constraint("Vertical", 5),
    Sketcher.Constraint("Horizontal", 6),
    Sketcher.Constraint("Vertical", 7),
    Sketcher.Constraint("Horizontal", 8),
    Sketcher.Constraint("Vertical", 9),
    Sketcher.Constraint("Horizontal", 10),
    Sketcher.Constraint("Vertical", 11),
    Sketcher.Constraint("Horizontal", 12),
    Sketcher.Constraint("Vertical", 13),
    Sketcher.Constraint("Horizontal", 14),
    Sketcher.Constraint("Vertical", 15),
    Sketcher.Constraint("Horizontal", 16),
    Sketcher.Constraint("Vertical", 17),
    Sketcher.Constraint("Horizontal", 18),
    Sketcher.Constraint("Vertical", 19),
    Sketcher.Constraint("Horizontal", 20),
    Sketcher.Constraint("Vertical", 21),
    Sketcher.Constraint("Horizontal", 22),
    Sketcher.Constraint("Vertical", 23),
    Sketcher.Constraint("Horizontal", 24),
    Sketcher.Constraint("Vertical", 25),
    Sketcher.Constraint("Horizontal", 26),
    Sketcher.Constraint("Vertical", 27),
    Sketcher.Constraint("Horizontal", 28),
    Sketcher.Constraint("Vertical", 29),
    Sketcher.Constraint("Horizontal", 0, 2, 3, 2),
    Sketcher.Constraint("Horizontal", 2, 2, 5, 2),
    Sketcher.Constraint("Horizontal", 4, 2, 7, 2),
    Sketcher.Constraint("Horizontal", 6, 2, 9, 2),
    Sketcher.Constraint("Horizontal", 8, 2, 11, 2),
    Sketcher.Constraint("Horizontal", 10, 2, 13, 2),
    Sketcher.Constraint("Horizontal", 12, 2, 15, 2),
    Sketcher.Constraint("Horizontal", 14, 2, 17, 2),
    Sketcher.Constraint("Horizontal", 16, 2, 19, 2),
    Sketcher.Constraint("Horizontal", 23, 2, 24, 2),
    Sketcher.Constraint("Horizontal", 18, 2, 25, 2),
    Sketcher.Constraint("Horizontal", 22, 2, 27, 2),
    Sketcher.Constraint("Equal", 0, 4),
    Sketcher.Constraint("Equal", 2, 6),
    Sketcher.Constraint("Equal", 4, 8),
    Sketcher.Constraint("Equal", 8, 12),
    Sketcher.Constraint("Equal", 6, 14),
    Sketcher.Constraint("Equal", 12, 16),
    Sketcher.Constraint("Equal", 14, 18),
    Sketcher.Constraint("Equal", 16, 20),
    Sketcher.Constraint("Equal", 20, 24),
    Sketcher.Constraint("Equal", 18, 1),
    Sketcher.Constraint("Equal", 24, 27),
    Sketcher.Constraint("DistanceX", 0, 1, 0, 2, 30.0),
    Sketcher.Constraint("DistanceX", 2, 1, 2, 2, 250.0),
    Sketcher.Constraint("DistanceX", 10, 1, 10, 2, 530.0),
    Sketcher.Constraint("DistanceX", 26, 1, 26, 2, 865.0),
    Sketcher.Constraint("DistanceX", 20, 2, 24, 2, 560.0),
    Sketcher.Constraint("DistanceX", 0, 2, -1, 1, 3018.736021),
    Sketcher.Constraint("DistanceY", -1, 1, 0, 2, 1210.547409),
])
pad11 = body.newObject("PartDesign::Pad", "Pad010")
pad11.Profile = sketch11
pad11.Length = 0.1
pad11.Reversed = True

# Sketch on XZ plane
sketch12 = body.newObject("Sketcher::SketchObject", "Sketch011")
sketch12.AttachmentSupport = (doc.getObject("XZ_Plane"), [""])
sketch12.MapMode = "FlatFace"
sketch12.AttachmentOffset = App.Placement(App.Vector(0, 0, -120), App.Rotation())
add_polygon(sketch12, [(-2817.799107, 730.547409), (-2687.799107, 730.547409), (-2687.799107, 600.547409), (-2817.799107, 600.547409)])  # lines 0-3
add_polygon(sketch12, [(-1698.736021, 730.547409), (-1568.736021, 730.547409), (-1568.736021, 600.547409), (-1698.736021, 600.547409)])  # lines 4-7
sketch12.addConstraint([
    Sketcher.Constraint("Horizontal", 0),
    Sketcher.Constraint("Vertical", 1),
    Sketcher.Constraint("Horizontal", 2),
    Sketcher.Constraint("Vertical", 3),
    Sketcher.Constraint("Horizontal", 4),
    Sketcher.Constraint("Vertical", 5),
    Sketcher.Constraint("Horizontal", 6),
    Sketcher.Constraint("Vertical", 7),
    Sketcher.Constraint("Horizontal", 3, 2, 4, 2),
    Sketcher.Constraint("Horizontal", 2, 2, 5, 2),
    Sketcher.Constraint("Equal", 2, 4),
    Sketcher.Constraint("Equal", 6, 1),
    Sketcher.Constraint("DistanceX", 0, 1, 0, 2, 130.0),
    Sketcher.Constraint("DistanceY", -1, 1, 0, 2, 730.547409),
    Sketcher.Constraint("DistanceX", 4, 2, -1, 1, 1568.736021),
    Sketcher.Constraint("DistanceX", 0, 2, -1, 1, 2687.799107),
])
pocket1 = body.newObject("PartDesign::Pocket", "Pocket")
pocket1.Profile = sketch12
pocket1.Length = 110
pocket1.Reversed = True

doc.recompute()
